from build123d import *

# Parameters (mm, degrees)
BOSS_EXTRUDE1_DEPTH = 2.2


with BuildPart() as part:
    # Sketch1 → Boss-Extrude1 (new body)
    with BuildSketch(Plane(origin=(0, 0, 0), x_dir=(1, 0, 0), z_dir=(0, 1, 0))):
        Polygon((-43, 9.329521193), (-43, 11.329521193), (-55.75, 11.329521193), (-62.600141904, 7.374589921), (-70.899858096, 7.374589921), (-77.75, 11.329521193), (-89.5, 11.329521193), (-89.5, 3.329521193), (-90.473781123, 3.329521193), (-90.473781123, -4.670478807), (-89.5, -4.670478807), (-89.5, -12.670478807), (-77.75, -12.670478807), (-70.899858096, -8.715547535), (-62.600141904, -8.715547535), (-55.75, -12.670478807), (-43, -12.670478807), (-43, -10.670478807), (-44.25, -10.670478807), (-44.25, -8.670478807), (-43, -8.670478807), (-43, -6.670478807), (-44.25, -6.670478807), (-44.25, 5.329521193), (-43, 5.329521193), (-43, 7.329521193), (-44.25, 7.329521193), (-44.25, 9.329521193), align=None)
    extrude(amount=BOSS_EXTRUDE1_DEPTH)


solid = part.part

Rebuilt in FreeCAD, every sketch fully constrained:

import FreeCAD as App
import Part
import Sketcher
from FreeCAD import Vector
Q = App.Units.Quantity


def add_polygon(sketch, points):
    """Adds a closed chain of lines whose ends are joined by coincident constraints."""
    first, n = sketch.GeometryCount, len(points)
    for a, b in zip(points, points[1:] + points[:1]):
        sketch.addGeometry(Part.LineSegment(App.Vector(*a, 0), App.Vector(*b, 0)), False)
    for i in range(n):
        sketch.addConstraint(Sketcher.Constraint("Coincident", first + i, 2, first + (i + 1) % n, 1))

doc = App.newDocument("Part")
body = doc.addObject("PartDesign::Body", "Body")

# Sketch on XZ plane
sketch1 = body.newObject("Sketcher::SketchObject", "Sketch")
sketch1.AttachmentSupport = (doc.getObject("XZ_Plane"), [""])
sketch1.MapMode = "FlatFace"
add_polygon(sketch1, [(-43, -9.329521), (-43, -11.329521), (-55.75, -11.329521), (-62.600142, -7.37459), (-70.899858, -7.37459), (-77.75, -11.329521), (-89.5, -11.329521), (-89.5, -3.329521), (-90.473781, -3.329521), (-90.473781, 4.670479), (-89.5, 4.670479), (-89.5, 12.670479), (-77.75, 12.670479), (-70.899858, 8.715548), (-62.600142, 8.715548), (-55.75, 12.670479), (-43, 12.670479), (-43, 10.670479), (-44.25, 10.670479), (-44.25, 8.670479), (-43, 8.670479), (-43, 6.670479), (-44.25, 6.670479), (-44.25, -5.329521), (-43, -5.329521), (-43, -7.329521), (-44.25, -7.329521), (-44.25, -9.329521)])  # lines 0-27
sketch1.addConstraint([
    Sketcher.Constraint("Vertical", 0),
    Sketcher.Constraint("Horizontal", 1),
    Sketcher.Constraint("Horizontal", 3),
    Sketcher.Constraint("Horizontal", 5),
    Sketcher.Constraint("Vertical", 6),
    Sketcher.Constraint("Horizontal", 7),
    Sketcher.Constraint("Vertical", 8),
    Sketcher.Constraint("Horizontal", 9),
    Sketcher.Constraint("Vertical", 10),
    Sketcher.Constraint("Horizontal", 11),
    Sketcher.Constraint("Horizontal", 13),
    Sketcher.Constraint("Horizontal", 15),
    Sketcher.Constraint("Vertical", 16),
    Sketcher.Constraint("Horizontal", 17),
    Sketcher.Constraint("Vertical", 18),
    Sketcher.Constraint("Horizontal", 19),
    Sketcher.Constraint("Vertical", 20),
    Sketcher.Constraint("Horizontal", 21),
    Sketcher.Constraint("Vertical", 22),
    Sketcher.Constraint("Horizontal", 23),
    Sketcher.Constraint("Vertical", 24),
    Sketcher.Constraint("Horizontal", 25),
    Sketcher.Constraint("Vertical", 26),
    Sketcher.Constraint("Horizontal", 27),
    Sketcher.Constraint("Parallel", 2, 12),
    Sketcher.Constraint("Parallel", 4, 14),
    Sketcher.Constraint("Horizontal", 1, 2, 4, 2),
    Sketcher.Constraint("Horizontal", 11, 2, 14, 2),
    Sketcher.Constraint("Vertical", 6, 2, 9, 2),
    Sketcher.Constraint("Vertical", 4, 2, 11, 2),
    Sketcher.Constraint("Vertical", 3, 2, 12, 2),
    Sketcher.Constraint("Vertical", 2, 2, 13, 2),
    Sketcher.Constraint("Vertical", 1, 2, 14, 2),
    Sketcher.Constraint("Vertical", 0, 2, 15, 2),
    Sketcher.Constraint("Vertical", 16, 2, 19, 2),
    Sketcher.Constraint("Vertical", 18, 2, 21, 2),
    Sketcher.Constraint("Vertical", 20, 2, 23, 2),
    Sketcher.Constraint("Vertical", 22, 2, 25, 2),
    Sketcher.Constraint("Equal", 6, 8),
    Sketcher.Constraint("Equal", 8, 10),
    Sketcher.Constraint("Equal", 0, 16),
    Sketcher.Constraint("Equal", 16, 18),
    Sketcher.Constraint("Equal", 18, 20),
    Sketcher.Constraint("Equal", 20, 24),
    Sketcher.Constraint("Equal", 24, 26),
    Sketcher.Constraint("DistanceY", 0, 2, 0, 1, 2.0),
    Sketcher.Constraint("DistanceY", 6, 1, 6, 2, 8.0),
    Sketcher.Constraint("Angle", 2, Q("150 deg")),
    Sketcher.Constraint("DistanceX", 0, 2, -1, 1, 43.0),
    Sketcher.Constraint("DistanceX", 4, 2, 1, 2, 22.0),
    Sketcher.Constraint("DistanceX", 1, 2, 1, 1, 12.75),
    Sketcher.Constraint("DistanceX", 5, 2, 5, 1, 11.75),
    Sketcher.Constraint("DistanceX", 17, 2, 17, 1, 1.25),
    Sketcher.Constraint("DistanceX", 7, 2, 7, 1, 0.973781),
    Sketcher.Constraint("DistanceX", 3, 2, 3, 1, 8.299716),
    Sketcher.Constraint("DistanceY", 0, 2, -1, 1, 11.329521),
])
pad1 = body.newObject("PartDesign::Pad", "Pad")
pad1.Profile = sketch1
pad1.Length = 2.2
pad1.Reversed = True

doc.recompute()
